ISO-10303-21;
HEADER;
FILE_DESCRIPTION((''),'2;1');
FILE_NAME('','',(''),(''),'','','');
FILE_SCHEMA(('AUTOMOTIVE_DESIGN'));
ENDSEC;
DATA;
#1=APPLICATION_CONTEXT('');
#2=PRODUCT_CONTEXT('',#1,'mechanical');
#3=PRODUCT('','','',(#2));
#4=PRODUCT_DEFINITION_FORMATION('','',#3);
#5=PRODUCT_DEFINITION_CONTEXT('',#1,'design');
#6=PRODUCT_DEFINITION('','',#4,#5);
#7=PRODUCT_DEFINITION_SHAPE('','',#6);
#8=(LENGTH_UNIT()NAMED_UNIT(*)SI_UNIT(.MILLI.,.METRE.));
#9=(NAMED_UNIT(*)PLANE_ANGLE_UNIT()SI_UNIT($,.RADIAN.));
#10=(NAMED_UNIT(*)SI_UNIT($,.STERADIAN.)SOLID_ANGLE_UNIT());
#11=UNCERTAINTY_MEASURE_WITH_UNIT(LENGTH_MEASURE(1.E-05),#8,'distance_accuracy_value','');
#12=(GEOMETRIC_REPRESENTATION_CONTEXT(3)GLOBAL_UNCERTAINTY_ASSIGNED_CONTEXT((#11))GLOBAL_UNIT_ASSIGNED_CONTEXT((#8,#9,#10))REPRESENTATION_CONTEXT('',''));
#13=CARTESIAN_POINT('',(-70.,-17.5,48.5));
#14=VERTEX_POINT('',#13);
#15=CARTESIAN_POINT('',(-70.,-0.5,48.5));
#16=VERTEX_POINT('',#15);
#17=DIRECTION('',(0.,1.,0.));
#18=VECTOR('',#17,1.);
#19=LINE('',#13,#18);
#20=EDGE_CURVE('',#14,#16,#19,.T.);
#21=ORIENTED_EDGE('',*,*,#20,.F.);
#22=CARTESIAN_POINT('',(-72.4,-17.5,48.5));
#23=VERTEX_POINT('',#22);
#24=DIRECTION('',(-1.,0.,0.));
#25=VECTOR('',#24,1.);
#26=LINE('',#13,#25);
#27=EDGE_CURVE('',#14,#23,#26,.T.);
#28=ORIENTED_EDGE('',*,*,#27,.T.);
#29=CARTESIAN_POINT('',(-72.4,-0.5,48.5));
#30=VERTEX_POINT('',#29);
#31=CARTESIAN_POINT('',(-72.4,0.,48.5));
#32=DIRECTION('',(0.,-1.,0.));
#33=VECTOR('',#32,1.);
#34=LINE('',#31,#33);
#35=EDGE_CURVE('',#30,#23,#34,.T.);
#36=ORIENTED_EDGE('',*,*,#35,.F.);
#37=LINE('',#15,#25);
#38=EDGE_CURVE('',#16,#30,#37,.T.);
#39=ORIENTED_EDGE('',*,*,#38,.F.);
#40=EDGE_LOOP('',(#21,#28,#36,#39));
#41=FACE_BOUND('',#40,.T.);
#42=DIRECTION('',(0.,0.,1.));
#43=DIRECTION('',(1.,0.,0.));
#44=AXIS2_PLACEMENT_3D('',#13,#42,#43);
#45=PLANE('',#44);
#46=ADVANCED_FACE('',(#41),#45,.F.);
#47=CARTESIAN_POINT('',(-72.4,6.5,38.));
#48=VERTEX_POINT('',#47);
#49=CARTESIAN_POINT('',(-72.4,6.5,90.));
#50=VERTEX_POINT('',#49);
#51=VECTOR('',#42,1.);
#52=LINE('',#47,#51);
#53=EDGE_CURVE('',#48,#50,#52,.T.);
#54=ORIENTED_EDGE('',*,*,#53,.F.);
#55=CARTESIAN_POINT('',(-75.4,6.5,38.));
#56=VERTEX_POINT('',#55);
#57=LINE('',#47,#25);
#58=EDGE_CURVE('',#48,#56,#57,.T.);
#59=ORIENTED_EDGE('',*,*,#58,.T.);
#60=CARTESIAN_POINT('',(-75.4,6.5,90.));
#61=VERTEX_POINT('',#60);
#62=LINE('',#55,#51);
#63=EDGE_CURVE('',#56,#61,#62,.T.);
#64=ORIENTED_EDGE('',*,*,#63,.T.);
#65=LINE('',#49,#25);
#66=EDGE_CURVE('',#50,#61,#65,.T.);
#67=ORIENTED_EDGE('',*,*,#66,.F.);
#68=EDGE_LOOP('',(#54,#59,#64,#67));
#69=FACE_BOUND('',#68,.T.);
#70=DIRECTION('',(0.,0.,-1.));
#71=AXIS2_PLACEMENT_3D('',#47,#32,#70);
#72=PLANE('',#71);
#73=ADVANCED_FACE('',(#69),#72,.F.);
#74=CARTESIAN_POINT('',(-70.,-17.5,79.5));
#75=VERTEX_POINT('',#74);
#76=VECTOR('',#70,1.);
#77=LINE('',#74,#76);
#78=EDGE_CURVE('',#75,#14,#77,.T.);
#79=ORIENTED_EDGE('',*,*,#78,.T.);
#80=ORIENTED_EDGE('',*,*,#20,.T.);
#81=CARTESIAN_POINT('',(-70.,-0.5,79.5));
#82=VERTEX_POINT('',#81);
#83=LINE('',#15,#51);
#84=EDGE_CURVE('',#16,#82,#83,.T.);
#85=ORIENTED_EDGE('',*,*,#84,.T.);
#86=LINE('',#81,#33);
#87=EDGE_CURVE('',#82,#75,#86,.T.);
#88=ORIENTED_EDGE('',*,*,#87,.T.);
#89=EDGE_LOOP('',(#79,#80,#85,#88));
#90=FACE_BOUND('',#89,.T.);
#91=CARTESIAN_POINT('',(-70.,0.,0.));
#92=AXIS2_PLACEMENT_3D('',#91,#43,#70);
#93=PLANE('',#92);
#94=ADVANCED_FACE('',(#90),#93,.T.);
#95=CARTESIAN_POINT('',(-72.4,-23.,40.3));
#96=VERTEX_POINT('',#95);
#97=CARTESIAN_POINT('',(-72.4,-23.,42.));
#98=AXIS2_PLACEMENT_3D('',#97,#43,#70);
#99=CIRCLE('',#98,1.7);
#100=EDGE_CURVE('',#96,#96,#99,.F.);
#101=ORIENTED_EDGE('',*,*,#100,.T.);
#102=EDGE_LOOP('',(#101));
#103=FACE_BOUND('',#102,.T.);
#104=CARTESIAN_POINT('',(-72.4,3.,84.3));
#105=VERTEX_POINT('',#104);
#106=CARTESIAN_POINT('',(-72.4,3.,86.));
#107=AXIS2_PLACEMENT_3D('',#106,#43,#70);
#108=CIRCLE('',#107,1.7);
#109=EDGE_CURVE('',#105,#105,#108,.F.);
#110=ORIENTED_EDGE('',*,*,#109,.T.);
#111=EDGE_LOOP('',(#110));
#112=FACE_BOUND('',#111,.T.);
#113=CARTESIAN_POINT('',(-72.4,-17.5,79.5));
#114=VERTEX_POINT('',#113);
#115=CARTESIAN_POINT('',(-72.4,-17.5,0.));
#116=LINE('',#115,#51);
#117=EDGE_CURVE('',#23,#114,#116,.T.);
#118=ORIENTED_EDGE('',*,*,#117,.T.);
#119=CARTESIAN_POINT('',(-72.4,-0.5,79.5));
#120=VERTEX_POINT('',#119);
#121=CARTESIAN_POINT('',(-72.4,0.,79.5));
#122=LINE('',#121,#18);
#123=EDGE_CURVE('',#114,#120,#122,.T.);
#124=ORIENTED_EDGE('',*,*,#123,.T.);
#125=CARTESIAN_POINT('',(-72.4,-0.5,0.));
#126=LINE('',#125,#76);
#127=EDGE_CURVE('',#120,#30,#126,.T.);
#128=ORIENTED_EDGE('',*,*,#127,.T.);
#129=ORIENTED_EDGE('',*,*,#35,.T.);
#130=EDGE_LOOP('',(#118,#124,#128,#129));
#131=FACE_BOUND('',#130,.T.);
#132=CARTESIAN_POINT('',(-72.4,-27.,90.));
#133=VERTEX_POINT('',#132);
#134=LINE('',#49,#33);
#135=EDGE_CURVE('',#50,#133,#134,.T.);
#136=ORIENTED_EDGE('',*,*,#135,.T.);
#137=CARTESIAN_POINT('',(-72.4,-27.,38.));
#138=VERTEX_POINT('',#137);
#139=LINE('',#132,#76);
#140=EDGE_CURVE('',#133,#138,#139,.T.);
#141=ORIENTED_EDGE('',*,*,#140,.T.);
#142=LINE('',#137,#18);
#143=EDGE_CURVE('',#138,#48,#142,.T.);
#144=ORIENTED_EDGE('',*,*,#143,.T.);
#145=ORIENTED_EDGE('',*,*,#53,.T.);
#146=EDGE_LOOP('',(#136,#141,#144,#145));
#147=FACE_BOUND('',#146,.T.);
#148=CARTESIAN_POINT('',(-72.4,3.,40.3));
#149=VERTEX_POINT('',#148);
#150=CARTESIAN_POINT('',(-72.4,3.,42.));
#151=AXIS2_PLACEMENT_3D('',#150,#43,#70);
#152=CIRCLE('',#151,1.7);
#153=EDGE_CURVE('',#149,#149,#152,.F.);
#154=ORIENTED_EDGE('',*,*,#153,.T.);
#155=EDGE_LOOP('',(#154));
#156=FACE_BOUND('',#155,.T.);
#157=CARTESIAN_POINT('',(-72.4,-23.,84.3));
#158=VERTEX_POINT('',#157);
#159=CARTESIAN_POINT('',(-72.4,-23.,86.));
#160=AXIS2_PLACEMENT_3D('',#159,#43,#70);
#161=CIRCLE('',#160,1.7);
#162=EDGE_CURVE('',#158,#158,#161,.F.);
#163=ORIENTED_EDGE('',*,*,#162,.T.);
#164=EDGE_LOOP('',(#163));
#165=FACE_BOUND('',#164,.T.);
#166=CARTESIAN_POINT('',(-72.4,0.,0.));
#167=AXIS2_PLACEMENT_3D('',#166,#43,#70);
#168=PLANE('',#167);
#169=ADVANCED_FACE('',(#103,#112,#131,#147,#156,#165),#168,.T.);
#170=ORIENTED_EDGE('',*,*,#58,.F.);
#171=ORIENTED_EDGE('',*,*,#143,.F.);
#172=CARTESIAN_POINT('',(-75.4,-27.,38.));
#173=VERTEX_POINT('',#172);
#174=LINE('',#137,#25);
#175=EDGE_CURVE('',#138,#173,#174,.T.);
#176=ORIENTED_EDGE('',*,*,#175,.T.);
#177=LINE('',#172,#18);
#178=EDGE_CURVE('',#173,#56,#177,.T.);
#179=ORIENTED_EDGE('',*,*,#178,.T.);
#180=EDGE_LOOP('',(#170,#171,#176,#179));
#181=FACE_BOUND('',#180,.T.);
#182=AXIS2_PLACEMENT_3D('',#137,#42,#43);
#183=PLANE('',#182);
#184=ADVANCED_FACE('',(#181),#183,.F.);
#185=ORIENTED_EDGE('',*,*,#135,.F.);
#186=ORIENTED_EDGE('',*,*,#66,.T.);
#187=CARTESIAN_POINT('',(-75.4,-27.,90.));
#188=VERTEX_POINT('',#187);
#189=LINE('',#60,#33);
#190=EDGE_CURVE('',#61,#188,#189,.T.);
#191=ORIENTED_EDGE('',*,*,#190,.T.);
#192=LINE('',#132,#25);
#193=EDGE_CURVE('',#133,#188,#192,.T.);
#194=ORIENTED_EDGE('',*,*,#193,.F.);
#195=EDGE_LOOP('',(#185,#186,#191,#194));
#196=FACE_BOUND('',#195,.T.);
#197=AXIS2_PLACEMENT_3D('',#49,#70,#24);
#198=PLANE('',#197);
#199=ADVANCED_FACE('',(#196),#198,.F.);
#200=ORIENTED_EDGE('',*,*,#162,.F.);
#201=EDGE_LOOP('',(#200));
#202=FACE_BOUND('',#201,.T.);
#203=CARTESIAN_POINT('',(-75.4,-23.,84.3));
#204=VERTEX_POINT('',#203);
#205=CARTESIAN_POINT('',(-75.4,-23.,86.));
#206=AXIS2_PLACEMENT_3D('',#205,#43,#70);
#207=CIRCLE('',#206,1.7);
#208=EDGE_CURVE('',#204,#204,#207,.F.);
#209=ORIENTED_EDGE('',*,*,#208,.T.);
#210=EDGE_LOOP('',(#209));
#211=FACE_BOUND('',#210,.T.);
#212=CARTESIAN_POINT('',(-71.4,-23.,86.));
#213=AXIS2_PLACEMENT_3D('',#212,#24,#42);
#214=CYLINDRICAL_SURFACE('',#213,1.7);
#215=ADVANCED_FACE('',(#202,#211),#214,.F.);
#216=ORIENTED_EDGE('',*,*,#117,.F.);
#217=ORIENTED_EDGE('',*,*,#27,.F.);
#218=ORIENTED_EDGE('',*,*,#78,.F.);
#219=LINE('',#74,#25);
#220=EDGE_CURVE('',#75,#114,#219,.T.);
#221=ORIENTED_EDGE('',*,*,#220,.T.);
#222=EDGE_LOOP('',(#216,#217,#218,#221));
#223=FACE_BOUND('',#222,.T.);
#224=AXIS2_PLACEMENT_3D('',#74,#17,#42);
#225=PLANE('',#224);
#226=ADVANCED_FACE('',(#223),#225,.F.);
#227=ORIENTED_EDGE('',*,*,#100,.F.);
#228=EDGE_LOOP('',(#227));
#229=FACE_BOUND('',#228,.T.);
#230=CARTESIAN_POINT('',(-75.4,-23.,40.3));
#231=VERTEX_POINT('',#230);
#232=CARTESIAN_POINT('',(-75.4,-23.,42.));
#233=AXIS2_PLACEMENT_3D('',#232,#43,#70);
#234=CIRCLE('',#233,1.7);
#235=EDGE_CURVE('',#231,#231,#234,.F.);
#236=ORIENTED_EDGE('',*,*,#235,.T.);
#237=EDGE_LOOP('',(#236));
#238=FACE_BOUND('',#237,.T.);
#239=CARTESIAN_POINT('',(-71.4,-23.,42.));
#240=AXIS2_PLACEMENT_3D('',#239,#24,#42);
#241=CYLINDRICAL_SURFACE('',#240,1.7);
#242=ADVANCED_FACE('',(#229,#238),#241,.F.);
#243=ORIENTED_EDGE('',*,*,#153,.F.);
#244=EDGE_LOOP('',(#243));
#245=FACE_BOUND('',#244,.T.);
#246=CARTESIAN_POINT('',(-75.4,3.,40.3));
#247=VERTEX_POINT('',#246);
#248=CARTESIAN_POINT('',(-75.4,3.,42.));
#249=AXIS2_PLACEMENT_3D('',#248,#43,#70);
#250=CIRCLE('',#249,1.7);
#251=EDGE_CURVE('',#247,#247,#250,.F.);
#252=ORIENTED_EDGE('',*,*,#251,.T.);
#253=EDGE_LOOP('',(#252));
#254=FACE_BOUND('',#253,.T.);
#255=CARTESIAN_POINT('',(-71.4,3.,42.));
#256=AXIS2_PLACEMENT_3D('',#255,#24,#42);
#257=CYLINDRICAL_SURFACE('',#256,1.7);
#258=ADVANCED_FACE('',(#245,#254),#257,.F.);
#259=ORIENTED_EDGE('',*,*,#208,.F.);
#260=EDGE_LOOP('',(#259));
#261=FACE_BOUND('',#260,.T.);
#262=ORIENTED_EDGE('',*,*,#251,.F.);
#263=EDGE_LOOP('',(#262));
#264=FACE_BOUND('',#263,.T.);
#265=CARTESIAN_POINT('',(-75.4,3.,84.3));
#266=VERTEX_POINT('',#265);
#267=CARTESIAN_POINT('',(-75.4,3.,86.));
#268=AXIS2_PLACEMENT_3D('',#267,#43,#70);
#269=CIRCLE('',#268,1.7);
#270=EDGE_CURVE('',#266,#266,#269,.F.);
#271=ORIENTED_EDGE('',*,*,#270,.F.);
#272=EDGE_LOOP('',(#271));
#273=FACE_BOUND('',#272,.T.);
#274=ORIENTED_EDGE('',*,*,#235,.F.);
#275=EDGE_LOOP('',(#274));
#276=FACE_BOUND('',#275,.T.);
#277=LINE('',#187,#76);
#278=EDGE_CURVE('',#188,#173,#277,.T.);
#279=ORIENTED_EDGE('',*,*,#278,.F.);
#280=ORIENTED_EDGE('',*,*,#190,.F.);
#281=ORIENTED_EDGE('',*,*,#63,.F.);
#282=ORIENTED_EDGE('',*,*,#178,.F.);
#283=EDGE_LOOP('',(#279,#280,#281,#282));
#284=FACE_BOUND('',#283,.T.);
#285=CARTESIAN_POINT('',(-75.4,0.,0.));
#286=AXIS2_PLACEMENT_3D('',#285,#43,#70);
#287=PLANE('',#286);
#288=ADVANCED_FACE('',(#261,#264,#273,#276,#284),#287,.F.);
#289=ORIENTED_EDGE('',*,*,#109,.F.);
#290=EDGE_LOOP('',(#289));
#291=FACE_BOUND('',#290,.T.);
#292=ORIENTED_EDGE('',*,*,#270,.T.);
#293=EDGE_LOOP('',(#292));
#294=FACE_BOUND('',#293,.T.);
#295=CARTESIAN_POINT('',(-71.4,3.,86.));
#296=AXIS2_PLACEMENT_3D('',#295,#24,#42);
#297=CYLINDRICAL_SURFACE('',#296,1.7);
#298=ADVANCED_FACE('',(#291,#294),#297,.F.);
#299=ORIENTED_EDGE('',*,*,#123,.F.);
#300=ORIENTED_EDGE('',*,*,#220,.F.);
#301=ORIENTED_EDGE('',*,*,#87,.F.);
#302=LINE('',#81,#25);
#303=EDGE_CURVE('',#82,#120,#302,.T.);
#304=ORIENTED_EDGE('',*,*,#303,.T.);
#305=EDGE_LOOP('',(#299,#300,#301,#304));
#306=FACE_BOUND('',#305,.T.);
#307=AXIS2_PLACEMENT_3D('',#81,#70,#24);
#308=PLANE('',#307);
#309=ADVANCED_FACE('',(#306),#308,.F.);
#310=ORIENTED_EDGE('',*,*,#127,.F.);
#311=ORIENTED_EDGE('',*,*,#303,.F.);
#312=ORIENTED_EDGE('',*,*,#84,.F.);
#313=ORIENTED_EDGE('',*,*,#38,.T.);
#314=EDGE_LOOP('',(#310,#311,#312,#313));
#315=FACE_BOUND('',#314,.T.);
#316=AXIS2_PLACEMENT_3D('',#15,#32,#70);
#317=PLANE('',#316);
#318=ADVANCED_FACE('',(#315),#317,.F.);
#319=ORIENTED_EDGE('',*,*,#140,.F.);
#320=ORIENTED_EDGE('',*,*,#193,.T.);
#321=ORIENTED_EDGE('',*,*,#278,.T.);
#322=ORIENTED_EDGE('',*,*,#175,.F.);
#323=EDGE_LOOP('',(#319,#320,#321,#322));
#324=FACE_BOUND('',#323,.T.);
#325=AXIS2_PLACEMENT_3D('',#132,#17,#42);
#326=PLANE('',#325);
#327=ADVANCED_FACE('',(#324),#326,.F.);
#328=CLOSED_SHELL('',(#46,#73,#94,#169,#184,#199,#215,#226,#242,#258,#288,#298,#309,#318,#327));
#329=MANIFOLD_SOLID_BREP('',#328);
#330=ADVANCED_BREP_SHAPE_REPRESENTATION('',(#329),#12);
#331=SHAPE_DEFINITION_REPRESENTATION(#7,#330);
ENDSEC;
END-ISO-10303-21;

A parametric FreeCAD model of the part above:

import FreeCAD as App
import Part
import Sketcher
Q = App.Units.Quantity


def add_polygon(sketch, points):
    """Adds a closed chain of lines whose ends are joined by coincident constraints."""
    first, n = sketch.GeometryCount, len(points)
    for a, b in zip(points, points[1:] + points[:1]):
        sketch.addGeometry(Part.LineSegment(App.Vector(*a, 0), App.Vector(*b, 0)), False)
    for i in range(n):
        sketch.addConstraint(Sketcher.Constraint("Coincident", first + i, 2, first + (i + 1) % n, 1))

doc = App.newDocument("Part")
params = doc.addObject("Spreadsheet::Sheet", "Params")
for row, (alias, value) in enumerate([
    ("sketch1_height", "52 mm"),
    ("sketch1_width", "33.5 mm"),
    ("pad1_length", "3 mm"),
    ("sketch2_width", "17 mm"),
    ("sketch2_height", "31 mm"),
    ("pad2_length", "2.41 mm"),
    ("sketch3_diameter", "3.4 mm"),
    ("pocket1_length", "5 mm"),
], start=1):
    params.set(f"A{row}", alias)
    params.set(f"B{row}", "=" + value)
    params.setAlias(f"B{row}", alias)

body = doc.addObject("PartDesign::Body", "Body")

sketch1 = body.newObject("Sketcher::SketchObject", "Sketch")
sketch1.AttachmentSupport = (doc.getObject("YZ_Plane"), [""])
sketch1.MapMode = "FlatFace"
sketch1.AttachmentOffset = App.Placement(App.Vector(0, 0, -75.4), App.Rotation())
add_polygon(sketch1, [(6.5, 90), (-27, 90), (-27, 38), (6.5, 38)])
sketch1.addConstraint(Sketcher.Constraint("Horizontal", 0))
sketch1.addConstraint(Sketcher.Constraint("Vertical", 1))
sketch1.addConstraint(Sketcher.Constraint("Horizontal", 2))
sketch1.addConstraint(Sketcher.Constraint("Vertical", 3))
sketch1.addConstraint(Sketcher.Constraint("DistanceY", 1, 2, 1, 1, Q("52 mm")))
sketch1.addConstraint(Sketcher.Constraint("DistanceX", 0, 2, 0, 1, Q("33.5 mm")))
sketch1.addConstraint(Sketcher.Constraint("DistanceX", 0, 2, -1, 1, Q("27 mm")))
sketch1.addConstraint(Sketcher.Constraint("DistanceY", -1, 1, 0, 2, Q("90 mm")))
sketch1.setExpression("Constraints[8]", "Params.sketch1_height")
sketch1.setExpression("Constraints[9]", "Params.sketch1_width")
pad1 = body.newObject("PartDesign::Pad", "Pad")
pad1.Profile = sketch1
pad1.setExpression("Length", "Params.pad1_length")

sketch2 = body.newObject("Sketcher::SketchObject", "Sketch001")
sketch2.AttachmentSupport = (doc.getObject("YZ_Plane"), [""])
sketch2.MapMode = "FlatFace"
sketch2.AttachmentOffset = App.Placement(App.Vector(0, 0, -72.41), App.Rotation())
add_polygon(sketch2, [(-0.5, 79.5), (-17.5, 79.5), (-17.5, 48.5), (-0.5, 48.5)])
sketch2.addConstraint(Sketcher.Constraint("Horizontal", 0))
sketch2.addConstraint(Sketcher.Constraint("Vertical", 1))
sketch2.addConstraint(Sketcher.Constraint("Horizontal", 2))
sketch2.addConstraint(Sketcher.Constraint("Vertical", 3))
sketch2.addConstraint(Sketcher.Constraint("DistanceX", 0, 2, 0, 1, Q("17 mm")))
sketch2.addConstraint(Sketcher.Constraint("DistanceY", 1, 2, 1, 1, Q("31 mm")))
sketch2.addConstraint(Sketcher.Constraint("DistanceX", 0, 2, -1, 1, Q("17.5 mm")))
sketch2.addConstraint(Sketcher.Constraint("DistanceY", -1, 1, 0, 2, Q("79.5 mm")))
sketch2.setExpression("Constraints[8]", "Params.sketch2_width")
sketch2.setExpression("Constraints[9]", "Params.sketch2_height")
pad2 = body.newObject("PartDesign::Pad", "Pad001")
pad2.Profile = sketch2
pad2.setExpression("Length", "Params.pad2_length")

sketch3 = body.newObject("Sketcher::SketchObject", "Sketch002")
sketch3.AttachmentSupport = (doc.getObject("YZ_Plane"), [""])
sketch3.MapMode = "FlatFace"
sketch3.AttachmentOffset = App.Placement(App.Vector(0, 0, -76.4), App.Rotation())
sketch3.addGeometry(Part.Circle(App.Vector(-23, 86, 0), App.Vector(0, 0, 1), 1.7), False)
sketch3.addGeometry(Part.Circle(App.Vector(3, 86, 0), App.Vector(0, 0, 1), 1.7), False)
sketch3.addGeometry(Part.Circle(App.Vector(-23, 42, 0), App.Vector(0, 0, 1), 1.7), False)
sketch3.addGeometry(Part.Circle(App.Vector(3, 42, 0), App.Vector(0, 0, 1), 1.7), False)
sketch3.addConstraint(Sketcher.Constraint("Equal", 0, 1))
sketch3.addConstraint(Sketcher.Constraint("Equal", 1, 2))
sketch3.addConstraint(Sketcher.Constraint("Equal", 2, 3))
sketch3.addConstraint(Sketcher.Constraint("Horizontal", 0, 3, 1, 3))
sketch3.addConstraint(Sketcher.Constraint("Horizontal", 2, 3, 3, 3))
sketch3.addConstraint(Sketcher.Constraint("Vertical", 0, 3, 2, 3))
sketch3.addConstraint(Sketcher.Constraint("Vertical", 1, 3, 3, 3))
sketch3.addConstraint(Sketcher.Constraint("Diameter", 0, Q("3.4 mm")))
sketch3.addConstraint(Sketcher.Constraint("DistanceX", 0, 3, -1, 1, Q("23 mm")))
sketch3.addConstraint(Sketcher.Constraint("DistanceY", -1, 1, 0, 3, Q("86 mm")))
sketch3.addConstraint(Sketcher.Constraint("DistanceX", -1, 1, 1, 3, Q("3 mm")))
sketch3.addConstraint(Sketcher.Constraint("DistanceY", -1, 1, 2, 3, Q("42 mm")))
sketch3.setExpression("Constraints[7]", "Params.sketch3_diameter")
pocket1 = body.newObject("PartDesign::Pocket", "Pocket")
pocket1.Profile = sketch3
pocket1.setExpression("Length", "Params.pocket1_length")
pocket1.Reversed = True

doc.recompute()
